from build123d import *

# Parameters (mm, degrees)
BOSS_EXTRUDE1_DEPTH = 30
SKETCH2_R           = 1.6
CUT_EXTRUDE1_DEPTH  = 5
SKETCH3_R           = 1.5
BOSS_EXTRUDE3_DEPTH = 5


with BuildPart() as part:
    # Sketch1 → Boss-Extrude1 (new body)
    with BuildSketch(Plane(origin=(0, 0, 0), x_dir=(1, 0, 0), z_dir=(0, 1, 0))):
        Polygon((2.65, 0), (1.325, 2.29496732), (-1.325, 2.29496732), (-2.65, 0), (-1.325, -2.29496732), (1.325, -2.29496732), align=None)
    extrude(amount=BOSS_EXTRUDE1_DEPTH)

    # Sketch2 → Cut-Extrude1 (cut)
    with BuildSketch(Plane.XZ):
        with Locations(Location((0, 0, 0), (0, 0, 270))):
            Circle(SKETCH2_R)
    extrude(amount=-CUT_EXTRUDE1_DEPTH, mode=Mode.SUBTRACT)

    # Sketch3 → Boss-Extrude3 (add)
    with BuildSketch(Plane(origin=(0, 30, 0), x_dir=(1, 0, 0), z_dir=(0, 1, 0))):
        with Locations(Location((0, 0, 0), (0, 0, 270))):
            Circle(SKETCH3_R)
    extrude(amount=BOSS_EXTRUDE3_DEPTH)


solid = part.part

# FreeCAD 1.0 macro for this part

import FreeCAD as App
import Part
import Sketcher
from FreeCAD import Vector
Q = App.Units.Quantity


def add_polygon(sketch, points):
    """Adds a closed chain of lines whose ends are joined by coincident constraints."""
    first, n = sketch.GeometryCount, len(points)
    for a, b in zip(points, points[1:] + points[:1]):
        sketch.addGeometry(Part.LineSegment(App.Vector(*a, 0), App.Vector(*b, 0)), False)
    for i in range(n):
        sketch.addConstraint(Sketcher.Constraint("Coincident", first + i, 2, first + (i + 1) % n, 1))

doc = App.newDocument("Part")
body = doc.addObject("PartDesign::Body", "Body")

sketch1 = body.newObject("Sketcher::SketchObject", "Sketch")
sketch1.AttachmentSupport = (doc.getObject("XZ_Plane"), [""])
sketch1.MapMode = "FlatFace"
add_polygon(sketch1, [(2.6, 0), (1.3, -2.3), (-1.3, -2.3), (-2.6, 0), (-1.3, 2.3), (1.3, 2.3)])
sketch1.addConstraint(Sketcher.Constraint("Horizontal", 1))
sketch1.addConstraint(Sketcher.Constraint("Horizontal", 4))
sketch1.addConstraint(Sketcher.Constraint("Symmetric", 0, 2, 3, 2, -1, 1))
sketch1.addConstraint(Sketcher.Constraint("Symmetric", 2, 2, 5, 2, -1, 1))
sketch1.addConstraint(Sketcher.Constraint("PointOnObject", 2, 2, -1))
sketch1.addConstraint(Sketcher.Constraint("Parallel", 2, 5))
sketch1.addConstraint(Sketcher.Constraint("Vertical", 1, 2, 3, 2))
sketch1.addConstraint(Sketcher.Constraint("Angle", 0, Q("-120 deg")))
sketch1.addConstraint(Sketcher.Constraint("DistanceX", 1, 2, 1, 1, Q("2.65 mm")))
sketch1.addConstraint(Sketcher.Constraint("DistanceX", 2, 2, 5, 2, Q("5.3 mm")))
pad1 = body.newObject("PartDesign::Pad", "Pad")
pad1.Profile = sketch1
pad1.Length = 30
pad1.Reversed = True

sketch2 = body.newObject("Sketcher::SketchObject", "Sketch001")
sketch2.AttachmentSupport = (doc.getObject("XZ_Plane"), [""])
sketch2.MapMode = "FlatFace"
sketch2.addGeometry(Part.Circle(Vector(0, 0, 0), Vector(0, 0, 1), 1.6), False)
sketch2.addConstraint(Sketcher.Constraint("Coincident", 0, 3, -1, 1))
sketch2.addConstraint(Sketcher.Constraint("Diameter", 0, Q("3.2 mm")))
pocket1 = body.newObject("PartDesign::Pocket", "Pocket")
pocket1.Profile = sketch2
pocket1.Length = 5

sketch3 = body.newObject("Sketcher::SketchObject", "Sketch002")
sketch3.AttachmentSupport = (doc.getObject("XZ_Plane"), [""])
sketch3.MapMode = "FlatFace"
sketch3.AttachmentOffset = App.Placement(Vector(0, 0, -30), App.Rotation())
sketch3.addGeometry(Part.Circle(Vector(0, 0, 0), Vector(0, 0, 1), 1.5), False)
sketch3.addConstraint(Sketcher.Constraint("Coincident", 0, 3, -1, 1))
sketch3.addConstraint(Sketcher.Constraint("Diameter", 0, Q("3 mm")))
pad2 = body.newObject("PartDesign::Pad", "Pad001")
pad2.Profile = sketch3
pad2.Length = 5
pad2.Reversed = True

doc.recompute()
